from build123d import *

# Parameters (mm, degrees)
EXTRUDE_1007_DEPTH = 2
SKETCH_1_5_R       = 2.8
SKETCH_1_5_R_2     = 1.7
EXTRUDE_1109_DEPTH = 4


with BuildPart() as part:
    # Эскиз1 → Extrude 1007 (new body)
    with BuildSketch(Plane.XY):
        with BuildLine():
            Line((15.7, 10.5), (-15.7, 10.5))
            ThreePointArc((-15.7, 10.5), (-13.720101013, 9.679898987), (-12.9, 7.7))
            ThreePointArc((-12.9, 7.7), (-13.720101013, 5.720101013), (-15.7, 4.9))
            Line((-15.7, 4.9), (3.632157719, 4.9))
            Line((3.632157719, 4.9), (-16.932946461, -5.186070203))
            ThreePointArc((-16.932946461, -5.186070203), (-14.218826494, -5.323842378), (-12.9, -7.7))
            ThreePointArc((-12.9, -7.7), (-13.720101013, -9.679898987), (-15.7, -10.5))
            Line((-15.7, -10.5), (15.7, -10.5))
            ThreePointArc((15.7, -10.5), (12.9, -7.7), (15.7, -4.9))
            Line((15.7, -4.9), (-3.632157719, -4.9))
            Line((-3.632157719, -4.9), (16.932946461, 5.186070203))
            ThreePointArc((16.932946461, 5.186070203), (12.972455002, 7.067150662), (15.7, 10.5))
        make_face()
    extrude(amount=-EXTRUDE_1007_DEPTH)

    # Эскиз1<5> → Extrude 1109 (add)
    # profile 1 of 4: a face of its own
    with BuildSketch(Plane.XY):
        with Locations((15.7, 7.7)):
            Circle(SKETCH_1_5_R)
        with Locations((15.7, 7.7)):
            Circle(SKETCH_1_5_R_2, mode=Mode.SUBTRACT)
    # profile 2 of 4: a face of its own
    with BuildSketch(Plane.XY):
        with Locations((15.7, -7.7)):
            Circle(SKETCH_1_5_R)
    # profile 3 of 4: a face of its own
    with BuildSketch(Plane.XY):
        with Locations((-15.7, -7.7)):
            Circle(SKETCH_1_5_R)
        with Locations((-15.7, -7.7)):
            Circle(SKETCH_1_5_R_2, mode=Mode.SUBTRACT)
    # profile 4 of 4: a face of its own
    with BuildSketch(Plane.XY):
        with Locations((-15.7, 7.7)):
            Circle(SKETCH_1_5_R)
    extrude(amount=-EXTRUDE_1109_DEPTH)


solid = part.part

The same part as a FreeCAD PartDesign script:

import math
import FreeCAD as App
import Part
import Sketcher
from FreeCAD import Vector
Q = App.Units.Quantity

doc = App.newDocument("Part")
body = doc.addObject("PartDesign::Body", "Body")

# Sketch on XY plane
sketch1 = body.newObject("Sketcher::SketchObject", "Sketch")
sketch1.AttachmentSupport = (doc.getObject("XY_Plane"), [""])
sketch1.MapMode = "FlatFace"
sketch1.addGeometry(Part.LineSegment(Vector(15.7, 10.5, 0), Vector(-15.7, 10.5, 0)), False)
sketch1.addGeometry(Part.ArcOfCircle(Part.Circle(Vector(-15.7, 7.7, 0), Vector(0, 0, 1), 2.8), math.radians(0), math.radians(90)), False)
sketch1.addGeometry(Part.ArcOfCircle(Part.Circle(Vector(-15.7, 7.7, 0), Vector(0, 0, 1), 2.8), math.radians(-90), math.radians(0)), False)
sketch1.addGeometry(Part.LineSegment(Vector(-15.7, 4.9, 0), Vector(3.6, 4.9, 0)), False)
sketch1.addGeometry(Part.LineSegment(Vector(3.6, 4.9, 0), Vector(-16.9, -5.2, 0)), False)
sketch1.addGeometry(Part.ArcOfCircle(Part.Circle(Vector(-15.7, -7.7, 0), Vector(0, 0, 1), 2.8), math.radians(0), math.radians(116)), False)
sketch1.addGeometry(Part.ArcOfCircle(Part.Circle(Vector(-15.7, -7.7, 0), Vector(0, 0, 1), 2.8), math.radians(-90), math.radians(0)), False)
sketch1.addGeometry(Part.LineSegment(Vector(-15.7, -10.5, 0), Vector(15.7, -10.5, 0)), False)
sketch1.addGeometry(Part.ArcOfCircle(Part.Circle(Vector(15.7, -7.7, 0), Vector(0, 0, 1), 2.8), math.radians(90), math.radians(270)), False)
sketch1.addGeometry(Part.LineSegment(Vector(15.7, -4.9, 0), Vector(-3.6, -4.9, 0)), False)
sketch1.addGeometry(Part.LineSegment(Vector(-3.6, -4.9, 0), Vector(16.9, 5.2, 0)), False)
sketch1.addGeometry(Part.ArcOfCircle(Part.Circle(Vector(15.7, 7.7, 0), Vector(0, 0, 1), 2.8), math.radians(90), math.radians(296)), False)
sketch1.addConstraint(Sketcher.Constraint("Tangent", 0, 2, 1, 2))
sketch1.addConstraint(Sketcher.Constraint("Tangent", 1, 1, 2, 2))
sketch1.addConstraint(Sketcher.Constraint("Tangent", 2, 1, 3, 1))
sketch1.addConstraint(Sketcher.Constraint("Coincident", 3, 2, 4, 1))
sketch1.addConstraint(Sketcher.Constraint("Tangent", 4, 2, 5, 2))
sketch1.addConstraint(Sketcher.Constraint("Tangent", 5, 1, 6, 2))
sketch1.addConstraint(Sketcher.Constraint("Tangent", 6, 1, 7, 1))
sketch1.addConstraint(Sketcher.Constraint("Tangent", 7, 2, 8, 2))
sketch1.addConstraint(Sketcher.Constraint("Tangent", 8, 1, 9, 1))
sketch1.addConstraint(Sketcher.Constraint("Coincident", 9, 2, 10, 1))
sketch1.addConstraint(Sketcher.Constraint("Tangent", 10, 2, 11, 2))
sketch1.addConstraint(Sketcher.Constraint("Tangent", 11, 1, 0, 1))
sketch1.addConstraint(Sketcher.Constraint("Horizontal", 0))
sketch1.addConstraint(Sketcher.Constraint("Horizontal", 3))
sketch1.addConstraint(Sketcher.Constraint("Horizontal", 7))
sketch1.addConstraint(Sketcher.Constraint("Horizontal", 9))
sketch1.addConstraint(Sketcher.Constraint("Equal", 1, 2))
sketch1.addConstraint(Sketcher.Constraint("Equal", 2, 5))
sketch1.addConstraint(Sketcher.Constraint("Equal", 5, 6))
sketch1.addConstraint(Sketcher.Constraint("Equal", 6, 8))
sketch1.addConstraint(Sketcher.Constraint("Equal", 8, 11))
sketch1.addConstraint(Sketcher.Constraint("Symmetric", 1, 3, 8, 3, -1, 1))
sketch1.addConstraint(Sketcher.Constraint("Symmetric", 4, 2, 10, 2, -1, 1))
sketch1.addConstraint(Sketcher.Constraint("Symmetric", 1, 1, 5, 1, -1))
sketch1.addConstraint(Sketcher.Constraint("Horizontal", 11, 3, 1, 1))
sketch1.addConstraint(Sketcher.Constraint("Radius", 1, Q("2.8 mm")))
sketch1.addConstraint(Sketcher.Constraint("DistanceX", 0, 2, 0, 1, Q("31.4 mm")))
sketch1.addConstraint(Sketcher.Constraint("DistanceY", -1, 1, 1, 3, Q("7.7 mm")))
sketch1.addConstraint(Sketcher.Constraint("Distance", 4, Q("22.90529 mm")))
pad1 = body.newObject("PartDesign::Pad", "Pad")
pad1.Profile = sketch1
pad1.Length = 2
pad1.Reversed = True

# Sketch on XY plane
sketch2 = body.newObject("Sketcher::SketchObject", "Sketch001")
sketch2.AttachmentSupport = (doc.getObject("XY_Plane"), [""])
sketch2.MapMode = "FlatFace"
sketch2.addGeometry(Part.Circle(Vector(15.7, 7.7, 0), Vector(0, 0, 1), 2.8), False)
sketch2.addGeometry(Part.Circle(Vector(15.7, 7.7, 0), Vector(0, 0, 1), 1.7), False)
sketch2.addGeometry(Part.Circle(Vector(15.7, -7.7, 0), Vector(0, 0, 1), 2.8), False)
sketch2.addGeometry(Part.Circle(Vector(-15.7, -7.7, 0), Vector(0, 0, 1), 2.8), False)
sketch2.addGeometry(Part.Circle(Vector(-15.7, -7.7, 0), Vector(0, 0, 1), 1.7), False)
sketch2.addGeometry(Part.Circle(Vector(-15.7, 7.7, 0), Vector(0, 0, 1), 2.8), False)
sketch2.addConstraint(Sketcher.Constraint("Coincident", 1, 3, 0, 3))
sketch2.addConstraint(Sketcher.Constraint("Coincident", 4, 3, 3, 3))
sketch2.addConstraint(Sketcher.Constraint("Equal", 0, 2))
sketch2.addConstraint(Sketcher.Constraint("Equal", 2, 3))
sketch2.addConstraint(Sketcher.Constraint("Equal", 1, 4))
sketch2.addConstraint(Sketcher.Constraint("Equal", 3, 5))
sketch2.addConstraint(Sketcher.Constraint("Symmetric", 0, 3, 3, 3, -1, 1))
sketch2.addConstraint(Sketcher.Constraint("Symmetric", 2, 3, 5, 3, -1, 1))
sketch2.addConstraint(Sketcher.Constraint("Symmetric", 2, 3, 3, 3, -2))
sketch2.addConstraint(Sketcher.Constraint("Diameter", 0, Q("5.6 mm")))
sketch2.addConstraint(Sketcher.Constraint("Diameter", 1, Q("3.4 mm")))
sketch2.addConstraint(Sketcher.Constraint("DistanceX", -1, 1, 0, 3, Q("15.7 mm")))
sketch2.addConstraint(Sketcher.Constraint("DistanceY", -1, 1, 0, 3, Q("7.7 mm")))
pad2 = body.newObject("PartDesign::Pad", "Pad001")
pad2.Profile = sketch2
pad2.Length = 4
pad2.Reversed = True

doc.recompute()
